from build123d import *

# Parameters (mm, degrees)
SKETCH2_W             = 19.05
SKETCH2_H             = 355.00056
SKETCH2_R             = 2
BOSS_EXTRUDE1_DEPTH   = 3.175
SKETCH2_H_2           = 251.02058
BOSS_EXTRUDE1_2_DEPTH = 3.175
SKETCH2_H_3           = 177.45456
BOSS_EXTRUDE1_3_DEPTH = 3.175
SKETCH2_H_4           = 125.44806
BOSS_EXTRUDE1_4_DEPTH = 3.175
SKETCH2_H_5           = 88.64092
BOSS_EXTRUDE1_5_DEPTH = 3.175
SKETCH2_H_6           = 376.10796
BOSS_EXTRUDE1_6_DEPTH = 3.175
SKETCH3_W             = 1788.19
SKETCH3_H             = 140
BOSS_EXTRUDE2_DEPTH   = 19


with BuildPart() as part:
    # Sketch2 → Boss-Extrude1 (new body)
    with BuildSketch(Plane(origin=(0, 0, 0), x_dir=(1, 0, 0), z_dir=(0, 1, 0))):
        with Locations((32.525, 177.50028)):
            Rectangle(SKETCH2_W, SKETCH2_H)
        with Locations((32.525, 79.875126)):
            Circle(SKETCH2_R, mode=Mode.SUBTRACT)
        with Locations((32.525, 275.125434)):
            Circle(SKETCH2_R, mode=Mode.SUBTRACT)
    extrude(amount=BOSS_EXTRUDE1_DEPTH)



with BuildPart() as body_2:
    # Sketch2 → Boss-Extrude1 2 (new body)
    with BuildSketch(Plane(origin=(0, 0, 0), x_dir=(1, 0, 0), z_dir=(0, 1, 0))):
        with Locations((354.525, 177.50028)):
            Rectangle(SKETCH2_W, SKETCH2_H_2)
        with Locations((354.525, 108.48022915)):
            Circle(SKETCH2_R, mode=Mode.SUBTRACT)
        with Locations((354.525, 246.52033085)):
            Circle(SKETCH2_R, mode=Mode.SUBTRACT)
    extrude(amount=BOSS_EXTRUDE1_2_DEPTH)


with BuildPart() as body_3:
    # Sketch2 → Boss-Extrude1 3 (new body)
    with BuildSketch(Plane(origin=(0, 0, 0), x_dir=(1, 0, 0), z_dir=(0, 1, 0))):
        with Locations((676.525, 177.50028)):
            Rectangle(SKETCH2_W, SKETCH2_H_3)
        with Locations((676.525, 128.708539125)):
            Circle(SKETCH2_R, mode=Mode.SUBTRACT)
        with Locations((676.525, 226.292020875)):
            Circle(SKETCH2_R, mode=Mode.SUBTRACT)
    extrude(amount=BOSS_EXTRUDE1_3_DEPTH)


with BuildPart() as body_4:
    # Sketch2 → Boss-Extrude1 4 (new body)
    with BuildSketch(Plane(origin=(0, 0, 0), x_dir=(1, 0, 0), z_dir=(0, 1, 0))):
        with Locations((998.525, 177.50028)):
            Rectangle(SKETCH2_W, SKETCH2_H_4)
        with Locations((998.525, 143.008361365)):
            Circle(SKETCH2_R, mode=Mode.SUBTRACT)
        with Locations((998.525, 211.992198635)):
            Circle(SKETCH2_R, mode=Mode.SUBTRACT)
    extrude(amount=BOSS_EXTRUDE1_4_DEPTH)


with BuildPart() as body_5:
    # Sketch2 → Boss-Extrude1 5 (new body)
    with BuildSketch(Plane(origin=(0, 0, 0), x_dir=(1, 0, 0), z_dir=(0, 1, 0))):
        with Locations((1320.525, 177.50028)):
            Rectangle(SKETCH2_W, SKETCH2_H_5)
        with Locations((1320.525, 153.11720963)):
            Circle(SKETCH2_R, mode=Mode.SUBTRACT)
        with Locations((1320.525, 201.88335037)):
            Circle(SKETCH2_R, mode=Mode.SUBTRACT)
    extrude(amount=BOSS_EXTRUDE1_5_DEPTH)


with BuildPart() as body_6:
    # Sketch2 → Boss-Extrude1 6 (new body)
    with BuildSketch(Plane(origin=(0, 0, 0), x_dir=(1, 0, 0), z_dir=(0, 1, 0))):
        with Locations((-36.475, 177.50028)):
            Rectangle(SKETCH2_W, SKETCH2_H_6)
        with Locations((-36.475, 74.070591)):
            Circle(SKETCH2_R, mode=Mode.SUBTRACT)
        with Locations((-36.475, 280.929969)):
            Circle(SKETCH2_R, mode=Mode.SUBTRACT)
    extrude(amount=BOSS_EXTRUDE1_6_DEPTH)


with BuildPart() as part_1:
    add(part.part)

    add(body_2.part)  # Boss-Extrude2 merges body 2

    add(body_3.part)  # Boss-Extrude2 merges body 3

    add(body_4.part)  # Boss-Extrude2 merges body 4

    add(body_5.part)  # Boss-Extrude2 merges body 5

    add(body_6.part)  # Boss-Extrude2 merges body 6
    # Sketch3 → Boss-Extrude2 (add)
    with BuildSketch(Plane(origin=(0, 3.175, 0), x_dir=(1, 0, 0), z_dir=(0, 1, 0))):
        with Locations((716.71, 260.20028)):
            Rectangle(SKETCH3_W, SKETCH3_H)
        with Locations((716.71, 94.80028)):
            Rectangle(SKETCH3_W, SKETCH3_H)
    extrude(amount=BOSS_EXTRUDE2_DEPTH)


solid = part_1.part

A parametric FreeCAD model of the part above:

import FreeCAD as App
import Part
import Sketcher
from FreeCAD import Vector


def add_polygon(sketch, points):
    """Adds a closed chain of lines whose ends are joined by coincident constraints."""
    first, n = sketch.GeometryCount, len(points)
    for a, b in zip(points, points[1:] + points[:1]):
        sketch.addGeometry(Part.LineSegment(App.Vector(*a, 0), App.Vector(*b, 0)), False)
    for i in range(n):
        sketch.addConstraint(Sketcher.Constraint("Coincident", first + i, 2, first + (i + 1) % n, 1))

doc = App.newDocument("Part")
body = doc.addObject("PartDesign::Body", "Body")

# Sketch on XZ plane
sketch1 = doc.addObject("Sketcher::SketchObject", "Sketch")
body.addObject(sketch1)
sketch1.AttachmentSupport = (doc.XZ_Plane, [""])
sketch1.MapMode = "FlatFace"
add_polygon(sketch1, [(23, -355), (23, 0), (42, 0), (42, -355)])  # lines 0-3
sketch1.addGeometry(Part.Circle(Vector(32.5, -79.9, 0), Vector(0, 0, 1), 2), False)  # 4
sketch1.addGeometry(Part.Circle(Vector(32.5, -275.1, 0), Vector(0, 0, 1), 2), False)  # 5
sketch1.addConstraint(Sketcher.Constraint("Vertical", 0))
sketch1.addConstraint(Sketcher.Constraint("Horizontal", 1))
sketch1.addConstraint(Sketcher.Constraint("Vertical", 2))
sketch1.addConstraint(Sketcher.Constraint("Horizontal", 3))
sketch1.addConstraint(Sketcher.Constraint("Equal", 4, 5))
sketch1.addConstraint(Sketcher.Constraint("PointOnObject", 0, 2, -1))
sketch1.addConstraint(Sketcher.Constraint("Vertical", 4, 3, 5, 3))
sketch1.addConstraint(Sketcher.Constraint("Diameter", 4, 4.0))
sketch1.addConstraint(Sketcher.Constraint("DistanceX", -1, 1, 0, 2, 23.0))
sketch1.addConstraint(Sketcher.Constraint("DistanceX", 1, 1, 1, 2, 19.05))
sketch1.addConstraint(Sketcher.Constraint("DistanceX", -1, 1, 4, 3, 32.525))
sketch1.addConstraint(Sketcher.Constraint("DistanceY", 0, 1, 0, 2, 355.00056))
sketch1.addConstraint(Sketcher.Constraint("DistanceY", 4, 3, -1, 1, 79.875126))
sketch1.addConstraint(Sketcher.Constraint("DistanceY", 5, 3, -1, 1, 275.125434))
pad1 = doc.addObject("PartDesign::Pad", "Pad")
body.addObject(pad1)
pad1.Profile = sketch1
pad1.Length = 3.175
pad1.Reversed = True
body2 = doc.addObject("PartDesign::Body", "Body001")

# Sketch on XZ plane
sketch2 = doc.addObject("Sketcher::SketchObject", "Sketch001")
body2.addObject(sketch2)
sketch2.AttachmentSupport = (doc.getObject("XZ_Plane001"), [""])
sketch2.MapMode = "FlatFace"
add_polygon(sketch2, [(345, -303), (345, -52), (364.1, -52), (364.1, -303)])  # lines 0-3
sketch2.addGeometry(Part.Circle(Vector(354.5, -108.5, 0), Vector(0, 0, 1), 2), False)  # 4
sketch2.addGeometry(Part.Circle(Vector(354.5, -246.5, 0), Vector(0, 0, 1), 2), False)  # 5
sketch2.addConstraint(Sketcher.Constraint("Vertical", 0))
sketch2.addConstraint(Sketcher.Constraint("Horizontal", 1))
sketch2.addConstraint(Sketcher.Constraint("Vertical", 2))
sketch2.addConstraint(Sketcher.Constraint("Horizontal", 3))
sketch2.addConstraint(Sketcher.Constraint("Equal", 4, 5))
sketch2.addConstraint(Sketcher.Constraint("Vertical", 4, 3, 5, 3))
sketch2.addConstraint(Sketcher.Constraint("Diameter", 4, 4.0))
sketch2.addConstraint(Sketcher.Constraint("DistanceX", -1, 1, 0, 2, 345.0))
sketch2.addConstraint(Sketcher.Constraint("DistanceX", 1, 1, 1, 2, 19.05))
sketch2.addConstraint(Sketcher.Constraint("DistanceX", -1, 1, 4, 3, 354.525))
sketch2.addConstraint(Sketcher.Constraint("DistanceY", 0, 1, 0, 2, 251.02058))
sketch2.addConstraint(Sketcher.Constraint("DistanceY", 5, 3, 4, 3, 138.040102))
sketch2.addConstraint(Sketcher.Constraint("DistanceY", 4, 3, -1, 1, 108.480229))
sketch2.addConstraint(Sketcher.Constraint("DistanceY", 0, 2, -1, 1, 51.98999))
pad2 = doc.addObject("PartDesign::Pad", "Pad001")
body2.addObject(pad2)
pad2.Profile = sketch2
pad2.Length = 3.175
pad2.Reversed = True
body3 = doc.addObject("PartDesign::Body", "Body002")

# Sketch on XZ plane
sketch3 = doc.addObject("Sketcher::SketchObject", "Sketch002")
body3.addObject(sketch3)
sketch3.AttachmentSupport = (doc.getObject("XZ_Plane002"), [""])
sketch3.MapMode = "FlatFace"
add_polygon(sketch3, [(667, -266.2), (667, -88.8), (686, -88.8), (686, -266.2)])  # lines 0-3
sketch3.addGeometry(Part.Circle(Vector(676.5, -128.7, 0), Vector(0, 0, 1), 2), False)  # 4
sketch3.addGeometry(Part.Circle(Vector(676.5, -226.3, 0), Vector(0, 0, 1), 2), False)  # 5
sketch3.addConstraint(Sketcher.Constraint("Vertical", 0))
sketch3.addConstraint(Sketcher.Constraint("Horizontal", 1))
sketch3.addConstraint(Sketcher.Constraint("Vertical", 2))
sketch3.addConstraint(Sketcher.Constraint("Horizontal", 3))
sketch3.addConstraint(Sketcher.Constraint("Equal", 4, 5))
sketch3.addConstraint(Sketcher.Constraint("Vertical", 4, 3, 5, 3))
sketch3.addConstraint(Sketcher.Constraint("Diameter", 4, 4.0))
sketch3.addConstraint(Sketcher.Constraint("DistanceX", -1, 1, 0, 2, 667.0))
sketch3.addConstraint(Sketcher.Constraint("DistanceX", 1, 1, 1, 2, 19.05))
sketch3.addConstraint(Sketcher.Constraint("DistanceX", -1, 1, 4, 3, 676.525))
sketch3.addConstraint(Sketcher.Constraint("DistanceY", 0, 2, -1, 1, 88.773))
sketch3.addConstraint(Sketcher.Constraint("DistanceY", 0, 1, 0, 2, 177.45456))
sketch3.addConstraint(Sketcher.Constraint("DistanceY", 4, 3, -1, 1, 128.708539))
sketch3.addConstraint(Sketcher.Constraint("DistanceY", 5, 3, -1, 1, 226.292021))
pad3 = doc.addObject("PartDesign::Pad", "Pad002")
body3.addObject(pad3)
pad3.Profile = sketch3
pad3.Length = 3.175
pad3.Reversed = True
body4 = doc.addObject("PartDesign::Body", "Body003")

# Sketch on XZ plane
sketch4 = doc.addObject("Sketcher::SketchObject", "Sketch003")
body4.addObject(sketch4)
sketch4.AttachmentSupport = (doc.getObject("XZ_Plane003"), [""])
sketch4.MapMode = "FlatFace"
add_polygon(sketch4, [(989, -240.2), (989, -114.8), (1008, -114.8), (1008, -240.2)])  # lines 0-3
sketch4.addGeometry(Part.Circle(Vector(998.5, -143, 0), Vector(0, 0, 1), 2), False)  # 4
sketch4.addGeometry(Part.Circle(Vector(998.5, -212, 0), Vector(0, 0, 1), 2), False)  # 5
sketch4.addConstraint(Sketcher.Constraint("Vertical", 0))
sketch4.addConstraint(Sketcher.Constraint("Horizontal", 1))
sketch4.addConstraint(Sketcher.Constraint("Vertical", 2))
sketch4.addConstraint(Sketcher.Constraint("Horizontal", 3))
sketch4.addConstraint(Sketcher.Constraint("Equal", 4, 5))
sketch4.addConstraint(Sketcher.Constraint("Vertical", 4, 3, 5, 3))
sketch4.addConstraint(Sketcher.Constraint("Diameter", 4, 4.0))
sketch4.addConstraint(Sketcher.Constraint("DistanceX", -1, 1, 0, 2, 989.0))
sketch4.addConstraint(Sketcher.Constraint("DistanceX", 1, 1, 1, 2, 19.05))
sketch4.addConstraint(Sketcher.Constraint("DistanceX", -1, 1, 4, 3, 998.525))
sketch4.addConstraint(Sketcher.Constraint("DistanceY", 0, 1, 0, 2, 125.44806))
sketch4.addConstraint(Sketcher.Constraint("DistanceY", 5, 3, -1, 1, 211.992199))
sketch4.addConstraint(Sketcher.Constraint("DistanceY", 4, 3, -1, 1, 143.008361))
sketch4.addConstraint(Sketcher.Constraint("DistanceY", 0, 2, -1, 1, 114.77625))
pad4 = doc.addObject("PartDesign::Pad", "Pad003")
body4.addObject(pad4)
pad4.Profile = sketch4
pad4.Length = 3.175
pad4.Reversed = True
body5 = doc.addObject("PartDesign::Body", "Body004")

# Sketch on XZ plane
sketch5 = doc.addObject("Sketcher::SketchObject", "Sketch004")
body5.addObject(sketch5)
sketch5.AttachmentSupport = (doc.getObject("XZ_Plane004"), [""])
sketch5.MapMode = "FlatFace"
add_polygon(sketch5, [(1311, -221.8), (1311, -133.2), (1330, -133.2), (1330, -221.8)])  # lines 0-3
sketch5.addGeometry(Part.Circle(Vector(1320.5, -153.1, 0), Vector(0, 0, 1), 2), False)  # 4
sketch5.addGeometry(Part.Circle(Vector(1320.5, -201.9, 0), Vector(0, 0, 1), 2), False)  # 5
sketch5.addConstraint(Sketcher.Constraint("Vertical", 0))
sketch5.addConstraint(Sketcher.Constraint("Horizontal", 1))
sketch5.addConstraint(Sketcher.Constraint("Vertical", 2))
sketch5.addConstraint(Sketcher.Constraint("Horizontal", 3))
sketch5.addConstraint(Sketcher.Constraint("Equal", 4, 5))
sketch5.addConstraint(Sketcher.Constraint("Vertical", 4, 3, 5, 3))
sketch5.addConstraint(Sketcher.Constraint("Diameter", 4, 4.0))
sketch5.addConstraint(Sketcher.Constraint("DistanceX", -1, 1, 0, 2, 1311.0))
sketch5.addConstraint(Sketcher.Constraint("DistanceX", 1, 1, 1, 2, 19.05))
sketch5.addConstraint(Sketcher.Constraint("DistanceX", -1, 1, 4, 3, 1320.525))
sketch5.addConstraint(Sketcher.Constraint("DistanceY", 0, 1, 0, 2, 88.64092))
sketch5.addConstraint(Sketcher.Constraint("DistanceY", 4, 3, -1, 1, 153.11721))
sketch5.addConstraint(Sketcher.Constraint("DistanceY", 5, 3, -1, 1, 201.88335))
sketch5.addConstraint(Sketcher.Constraint("DistanceY", 0, 2, -1, 1, 133.17982))
pad5 = doc.addObject("PartDesign::Pad", "Pad004")
body5.addObject(pad5)
pad5.Profile = sketch5
pad5.Length = 3.175
pad5.Reversed = True
body6 = doc.addObject("PartDesign::Body", "Body005")

# Sketch on XZ plane
sketch6 = doc.addObject("Sketcher::SketchObject", "Sketch005")
body6.addObject(sketch6)
sketch6.AttachmentSupport = (doc.getObject("XZ_Plane005"), [""])
sketch6.MapMode = "FlatFace"
add_polygon(sketch6, [(-46, -365.6), (-46, 10.6), (-26.9, 10.6), (-26.9, -365.6)])  # lines 0-3
sketch6.addGeometry(Part.Circle(Vector(-36.5, -74.1, 0), Vector(0, 0, 1), 2), False)  # 4
sketch6.addGeometry(Part.Circle(Vector(-36.5, -280.9, 0), Vector(0, 0, 1), 2), False)  # 5
sketch6.addConstraint(Sketcher.Constraint("Vertical", 0))
sketch6.addConstraint(Sketcher.Constraint("Horizontal", 1))
sketch6.addConstraint(Sketcher.Constraint("Vertical", 2))
sketch6.addConstraint(Sketcher.Constraint("Horizontal", 3))
sketch6.addConstraint(Sketcher.Constraint("Equal", 4, 5))
sketch6.addConstraint(Sketcher.Constraint("Vertical", 4, 3, 5, 3))
sketch6.addConstraint(Sketcher.Constraint("Diameter", 4, 4.0))
sketch6.addConstraint(Sketcher.Constraint("DistanceX", 0, 2, -1, 1, 46.0))
sketch6.addConstraint(Sketcher.Constraint("DistanceX", 1, 1, 1, 2, 19.05))
sketch6.addConstraint(Sketcher.Constraint("DistanceX", 4, 3, -1, 1, 36.475))
sketch6.addConstraint(Sketcher.Constraint("DistanceY", 0, 1, 0, 2, 376.10796))
sketch6.addConstraint(Sketcher.Constraint("DistanceY", -1, 1, 0, 2, 10.5537))
sketch6.addConstraint(Sketcher.Constraint("DistanceY", 4, 3, -1, 1, 74.070591))
sketch6.addConstraint(Sketcher.Constraint("DistanceY", 5, 3, -1, 1, 280.929969))
pad6 = doc.addObject("PartDesign::Pad", "Pad005")
body6.addObject(pad6)
pad6.Profile = sketch6
pad6.Length = 3.175
pad6.Reversed = True
body.AllowCompound = True
doc.recompute()

boolean = doc.addObject("PartDesign::Boolean", "Boolean")
body.addObject(boolean)
boolean.Type = "Fuse"
boolean.addObjects([body2])
doc.recompute()

boolean2 = doc.addObject("PartDesign::Boolean", "Boolean001")
body.addObject(boolean2)
boolean2.Type = "Fuse"
boolean2.addObjects([body3])
doc.recompute()

boolean3 = doc.addObject("PartDesign::Boolean", "Boolean002")
body.addObject(boolean3)
boolean3.Type = "Fuse"
boolean3.addObjects([body4])
doc.recompute()

boolean4 = doc.addObject("PartDesign::Boolean", "Boolean003")
body.addObject(boolean4)
boolean4.Type = "Fuse"
boolean4.addObjects([body5])
doc.recompute()

boolean5 = doc.addObject("PartDesign::Boolean", "Boolean004")
body.addObject(boolean5)
boolean5.Type = "Fuse"
boolean5.addObjects([body6])

# Sketch on XZ plane
sketch7 = doc.addObject("Sketcher::SketchObject", "Sketch006")
body.addObject(sketch7)
sketch7.AttachmentSupport = (doc.XZ_Plane, [""])
sketch7.MapMode = "FlatFace"
sketch7.AttachmentOffset = App.Placement(Vector(0, 0, -3.175), App.Rotation())
add_polygon(sketch7, [(-177, -330), (-177, -190), (1611, -190), (1611, -330)])  # lines 0-3
add_polygon(sketch7, [(-177, -165), (-177, -25), (1611, -25), (1611, -165)])  # lines 4-7
sketch7.addConstraint(Sketcher.Constraint("Vertical", 0))
sketch7.addConstraint(Sketcher.Constraint("Horizontal", 1))
sketch7.addConstraint(Sketcher.Constraint("Vertical", 2))
sketch7.addConstraint(Sketcher.Constraint("Horizontal", 3))
sketch7.addConstraint(Sketcher.Constraint("Vertical", 4))
sketch7.addConstraint(Sketcher.Constraint("Horizontal", 5))
sketch7.addConstraint(Sketcher.Constraint("Vertical", 6))
sketch7.addConstraint(Sketcher.Constraint("Horizontal", 7))
sketch7.addConstraint(Sketcher.Constraint("Vertical", 3, 2, 4, 2))
sketch7.addConstraint(Sketcher.Constraint("Vertical", 2, 2, 5, 2))
sketch7.addConstraint(Sketcher.Constraint("Equal", 2, 4))
sketch7.addConstraint(Sketcher.Constraint("DistanceY", 0, 1, 0, 2, 140.0))
sketch7.addConstraint(Sketcher.Constraint("DistanceX", 1, 1, 1, 2, 1788.19))
sketch7.addConstraint(Sketcher.Constraint("DistanceY", 0, 2, 4, 2, 165.4))
sketch7.addConstraint(Sketcher.Constraint("DistanceX", 0, 2, -1, 1, 177.385))
sketch7.addConstraint(Sketcher.Constraint("DistanceY", 0, 2, -1, 1, 190.20028))
pad7 = doc.addObject("PartDesign::Pad", "Pad006")
body.addObject(pad7)
pad7.Profile = sketch7
pad7.Length = 19
pad7.Reversed = True

doc.recompute()
